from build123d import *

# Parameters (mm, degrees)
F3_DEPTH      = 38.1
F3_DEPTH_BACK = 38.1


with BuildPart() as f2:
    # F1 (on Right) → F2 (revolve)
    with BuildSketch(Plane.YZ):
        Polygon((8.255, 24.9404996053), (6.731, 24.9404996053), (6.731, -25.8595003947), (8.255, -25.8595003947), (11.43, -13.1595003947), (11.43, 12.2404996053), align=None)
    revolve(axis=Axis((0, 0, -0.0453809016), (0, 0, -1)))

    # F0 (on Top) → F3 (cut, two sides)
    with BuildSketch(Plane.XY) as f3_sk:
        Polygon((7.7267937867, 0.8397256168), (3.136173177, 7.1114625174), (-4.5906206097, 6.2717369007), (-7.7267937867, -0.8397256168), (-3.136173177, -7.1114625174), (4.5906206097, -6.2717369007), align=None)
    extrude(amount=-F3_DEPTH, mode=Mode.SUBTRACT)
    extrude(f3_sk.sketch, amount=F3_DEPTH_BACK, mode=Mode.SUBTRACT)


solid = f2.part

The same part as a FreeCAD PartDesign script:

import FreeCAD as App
import Part
import Sketcher
from FreeCAD import Vector
Q = App.Units.Quantity

doc = App.newDocument("Part")
body = doc.addObject("PartDesign::Body", "Body")

# Sketch on YZ plane
sketch1 = body.newObject("Sketcher::SketchObject", "Sketch")
sketch1.AttachmentSupport = (doc.getObject("YZ_Plane"), [""])
sketch1.MapMode = "FlatFace"
sketch1.addGeometry(Part.LineSegment(Vector(8.3, 24.9, 0), Vector(6.7, 24.9, 0)), False)
sketch1.addGeometry(Part.LineSegment(Vector(6.7, 24.9, 0), Vector(6.7, -25.9, 0)), False)
sketch1.addGeometry(Part.LineSegment(Vector(6.7, -25.9, 0), Vector(8.3, -25.9, 0)), False)
sketch1.addGeometry(Part.LineSegment(Vector(8.3, -25.9, 0), Vector(11.4, -13.2, 0)), False)
sketch1.addGeometry(Part.LineSegment(Vector(11.4, -13.2, 0), Vector(11.4, 12.2, 0)), False)
sketch1.addGeometry(Part.LineSegment(Vector(11.4, 12.2, 0), Vector(8.3, 24.9, 0)), False)
sketch1.addConstraint(Sketcher.Constraint("Coincident", 0, 2, 1, 1))
sketch1.addConstraint(Sketcher.Constraint("Coincident", 1, 2, 2, 1))
sketch1.addConstraint(Sketcher.Constraint("Coincident", 2, 2, 3, 1))
sketch1.addConstraint(Sketcher.Constraint("Coincident", 3, 2, 4, 1))
sketch1.addConstraint(Sketcher.Constraint("Coincident", 4, 2, 5, 1))
sketch1.addConstraint(Sketcher.Constraint("Coincident", 5, 2, 0, 1))
sketch1.addConstraint(Sketcher.Constraint("Horizontal", 0))
sketch1.addConstraint(Sketcher.Constraint("Vertical", 1))
sketch1.addConstraint(Sketcher.Constraint("Horizontal", 2))
sketch1.addConstraint(Sketcher.Constraint("Vertical", 4))
sketch1.addConstraint(Sketcher.Constraint("Vertical", 2, 2, 5, 2))
sketch1.addConstraint(Sketcher.Constraint("Equal", 3, 5))
sketch1.addConstraint(Sketcher.Constraint("DistanceY", 1, 2, 1, 1, Q("2 in")))
sketch1.addConstraint(Sketcher.Constraint("DistanceY", 4, 1, 4, 2, Q("1 in")))
sketch1.addConstraint(Sketcher.Constraint("DistanceX", 0, 2, 0, 1, Q("0.06 in")))
sketch1.addConstraint(Sketcher.Constraint("DistanceX", -1, 1, 3, 2, Q("0.45 in")))
sketch1.addConstraint(Sketcher.Constraint("DistanceX", -1, 1, 0, 2, Q("0.265 in")))
sketch1.addConstraint(Sketcher.Constraint("DistanceY", -1, 1, 0, 2, Q("24.9405 mm")))
revolution = body.newObject("PartDesign::Revolution", "Revolution")
revolution.Profile = sketch1
revolution.ReferenceAxis = (sketch1, ["V_Axis"])
revolution.Angle = 360

# Sketch on XY plane
sketch2 = body.newObject("Sketcher::SketchObject", "Sketch001")
sketch2.AttachmentSupport = (doc.getObject("XY_Plane"), [""])
sketch2.MapMode = "FlatFace"
sketch2.addGeometry(Part.LineSegment(Vector(8, 1, 0), Vector(3, 7, 0)), False)
sketch2.addGeometry(Part.LineSegment(Vector(3, 7, 0), Vector(-5, 6, 0)), False)
sketch2.addGeometry(Part.LineSegment(Vector(-5, 6, 0), Vector(-8, -1, 0)), False)
sketch2.addGeometry(Part.LineSegment(Vector(-8, -1, 0), Vector(-3, -7, 0)), False)
sketch2.addGeometry(Part.LineSegment(Vector(-3, -7, 0), Vector(5, -6, 0)), False)
sketch2.addGeometry(Part.LineSegment(Vector(5, -6, 0), Vector(8, 1, 0)), False)
sketch2.addConstraint(Sketcher.Constraint("Coincident", 0, 2, 1, 1))
sketch2.addConstraint(Sketcher.Constraint("Coincident", 1, 2, 2, 1))
sketch2.addConstraint(Sketcher.Constraint("Coincident", 2, 2, 3, 1))
sketch2.addConstraint(Sketcher.Constraint("Coincident", 3, 2, 4, 1))
sketch2.addConstraint(Sketcher.Constraint("Coincident", 4, 2, 5, 1))
sketch2.addConstraint(Sketcher.Constraint("Coincident", 5, 2, 0, 1))
sketch2.addConstraint(Sketcher.Constraint("Symmetric", 0, 2, 3, 2, -1, 1))
sketch2.addConstraint(Sketcher.Constraint("Symmetric", 1, 2, 4, 2, -1, 1))
sketch2.addConstraint(Sketcher.Constraint("Symmetric", 2, 2, 5, 2, -1, 1))
sketch2.addConstraint(Sketcher.Constraint("Equal", 0, 1))
sketch2.addConstraint(Sketcher.Constraint("Equal", 1, 2))
sketch2.addConstraint(Sketcher.Constraint("DistanceY", 3, 2, 1, 2, Q("13.383199 mm")))
sketch2.addConstraint(Sketcher.Constraint("Distance", 0, Q("7.772289 mm")))
sketch2.addConstraint(Sketcher.Constraint("DistanceX", 1, 2, -1, 1, Q("4.590621 mm")))
sketch2.addConstraint(Sketcher.Constraint("DistanceY", 2, 2, 0, 2, Q("7.951188 mm")))
pocket1 = body.newObject("PartDesign::Pocket", "Pocket")
pocket1.Profile = sketch2
pocket1.Type = "ThroughAll"
pocket1.Midplane = True

doc.recompute()
